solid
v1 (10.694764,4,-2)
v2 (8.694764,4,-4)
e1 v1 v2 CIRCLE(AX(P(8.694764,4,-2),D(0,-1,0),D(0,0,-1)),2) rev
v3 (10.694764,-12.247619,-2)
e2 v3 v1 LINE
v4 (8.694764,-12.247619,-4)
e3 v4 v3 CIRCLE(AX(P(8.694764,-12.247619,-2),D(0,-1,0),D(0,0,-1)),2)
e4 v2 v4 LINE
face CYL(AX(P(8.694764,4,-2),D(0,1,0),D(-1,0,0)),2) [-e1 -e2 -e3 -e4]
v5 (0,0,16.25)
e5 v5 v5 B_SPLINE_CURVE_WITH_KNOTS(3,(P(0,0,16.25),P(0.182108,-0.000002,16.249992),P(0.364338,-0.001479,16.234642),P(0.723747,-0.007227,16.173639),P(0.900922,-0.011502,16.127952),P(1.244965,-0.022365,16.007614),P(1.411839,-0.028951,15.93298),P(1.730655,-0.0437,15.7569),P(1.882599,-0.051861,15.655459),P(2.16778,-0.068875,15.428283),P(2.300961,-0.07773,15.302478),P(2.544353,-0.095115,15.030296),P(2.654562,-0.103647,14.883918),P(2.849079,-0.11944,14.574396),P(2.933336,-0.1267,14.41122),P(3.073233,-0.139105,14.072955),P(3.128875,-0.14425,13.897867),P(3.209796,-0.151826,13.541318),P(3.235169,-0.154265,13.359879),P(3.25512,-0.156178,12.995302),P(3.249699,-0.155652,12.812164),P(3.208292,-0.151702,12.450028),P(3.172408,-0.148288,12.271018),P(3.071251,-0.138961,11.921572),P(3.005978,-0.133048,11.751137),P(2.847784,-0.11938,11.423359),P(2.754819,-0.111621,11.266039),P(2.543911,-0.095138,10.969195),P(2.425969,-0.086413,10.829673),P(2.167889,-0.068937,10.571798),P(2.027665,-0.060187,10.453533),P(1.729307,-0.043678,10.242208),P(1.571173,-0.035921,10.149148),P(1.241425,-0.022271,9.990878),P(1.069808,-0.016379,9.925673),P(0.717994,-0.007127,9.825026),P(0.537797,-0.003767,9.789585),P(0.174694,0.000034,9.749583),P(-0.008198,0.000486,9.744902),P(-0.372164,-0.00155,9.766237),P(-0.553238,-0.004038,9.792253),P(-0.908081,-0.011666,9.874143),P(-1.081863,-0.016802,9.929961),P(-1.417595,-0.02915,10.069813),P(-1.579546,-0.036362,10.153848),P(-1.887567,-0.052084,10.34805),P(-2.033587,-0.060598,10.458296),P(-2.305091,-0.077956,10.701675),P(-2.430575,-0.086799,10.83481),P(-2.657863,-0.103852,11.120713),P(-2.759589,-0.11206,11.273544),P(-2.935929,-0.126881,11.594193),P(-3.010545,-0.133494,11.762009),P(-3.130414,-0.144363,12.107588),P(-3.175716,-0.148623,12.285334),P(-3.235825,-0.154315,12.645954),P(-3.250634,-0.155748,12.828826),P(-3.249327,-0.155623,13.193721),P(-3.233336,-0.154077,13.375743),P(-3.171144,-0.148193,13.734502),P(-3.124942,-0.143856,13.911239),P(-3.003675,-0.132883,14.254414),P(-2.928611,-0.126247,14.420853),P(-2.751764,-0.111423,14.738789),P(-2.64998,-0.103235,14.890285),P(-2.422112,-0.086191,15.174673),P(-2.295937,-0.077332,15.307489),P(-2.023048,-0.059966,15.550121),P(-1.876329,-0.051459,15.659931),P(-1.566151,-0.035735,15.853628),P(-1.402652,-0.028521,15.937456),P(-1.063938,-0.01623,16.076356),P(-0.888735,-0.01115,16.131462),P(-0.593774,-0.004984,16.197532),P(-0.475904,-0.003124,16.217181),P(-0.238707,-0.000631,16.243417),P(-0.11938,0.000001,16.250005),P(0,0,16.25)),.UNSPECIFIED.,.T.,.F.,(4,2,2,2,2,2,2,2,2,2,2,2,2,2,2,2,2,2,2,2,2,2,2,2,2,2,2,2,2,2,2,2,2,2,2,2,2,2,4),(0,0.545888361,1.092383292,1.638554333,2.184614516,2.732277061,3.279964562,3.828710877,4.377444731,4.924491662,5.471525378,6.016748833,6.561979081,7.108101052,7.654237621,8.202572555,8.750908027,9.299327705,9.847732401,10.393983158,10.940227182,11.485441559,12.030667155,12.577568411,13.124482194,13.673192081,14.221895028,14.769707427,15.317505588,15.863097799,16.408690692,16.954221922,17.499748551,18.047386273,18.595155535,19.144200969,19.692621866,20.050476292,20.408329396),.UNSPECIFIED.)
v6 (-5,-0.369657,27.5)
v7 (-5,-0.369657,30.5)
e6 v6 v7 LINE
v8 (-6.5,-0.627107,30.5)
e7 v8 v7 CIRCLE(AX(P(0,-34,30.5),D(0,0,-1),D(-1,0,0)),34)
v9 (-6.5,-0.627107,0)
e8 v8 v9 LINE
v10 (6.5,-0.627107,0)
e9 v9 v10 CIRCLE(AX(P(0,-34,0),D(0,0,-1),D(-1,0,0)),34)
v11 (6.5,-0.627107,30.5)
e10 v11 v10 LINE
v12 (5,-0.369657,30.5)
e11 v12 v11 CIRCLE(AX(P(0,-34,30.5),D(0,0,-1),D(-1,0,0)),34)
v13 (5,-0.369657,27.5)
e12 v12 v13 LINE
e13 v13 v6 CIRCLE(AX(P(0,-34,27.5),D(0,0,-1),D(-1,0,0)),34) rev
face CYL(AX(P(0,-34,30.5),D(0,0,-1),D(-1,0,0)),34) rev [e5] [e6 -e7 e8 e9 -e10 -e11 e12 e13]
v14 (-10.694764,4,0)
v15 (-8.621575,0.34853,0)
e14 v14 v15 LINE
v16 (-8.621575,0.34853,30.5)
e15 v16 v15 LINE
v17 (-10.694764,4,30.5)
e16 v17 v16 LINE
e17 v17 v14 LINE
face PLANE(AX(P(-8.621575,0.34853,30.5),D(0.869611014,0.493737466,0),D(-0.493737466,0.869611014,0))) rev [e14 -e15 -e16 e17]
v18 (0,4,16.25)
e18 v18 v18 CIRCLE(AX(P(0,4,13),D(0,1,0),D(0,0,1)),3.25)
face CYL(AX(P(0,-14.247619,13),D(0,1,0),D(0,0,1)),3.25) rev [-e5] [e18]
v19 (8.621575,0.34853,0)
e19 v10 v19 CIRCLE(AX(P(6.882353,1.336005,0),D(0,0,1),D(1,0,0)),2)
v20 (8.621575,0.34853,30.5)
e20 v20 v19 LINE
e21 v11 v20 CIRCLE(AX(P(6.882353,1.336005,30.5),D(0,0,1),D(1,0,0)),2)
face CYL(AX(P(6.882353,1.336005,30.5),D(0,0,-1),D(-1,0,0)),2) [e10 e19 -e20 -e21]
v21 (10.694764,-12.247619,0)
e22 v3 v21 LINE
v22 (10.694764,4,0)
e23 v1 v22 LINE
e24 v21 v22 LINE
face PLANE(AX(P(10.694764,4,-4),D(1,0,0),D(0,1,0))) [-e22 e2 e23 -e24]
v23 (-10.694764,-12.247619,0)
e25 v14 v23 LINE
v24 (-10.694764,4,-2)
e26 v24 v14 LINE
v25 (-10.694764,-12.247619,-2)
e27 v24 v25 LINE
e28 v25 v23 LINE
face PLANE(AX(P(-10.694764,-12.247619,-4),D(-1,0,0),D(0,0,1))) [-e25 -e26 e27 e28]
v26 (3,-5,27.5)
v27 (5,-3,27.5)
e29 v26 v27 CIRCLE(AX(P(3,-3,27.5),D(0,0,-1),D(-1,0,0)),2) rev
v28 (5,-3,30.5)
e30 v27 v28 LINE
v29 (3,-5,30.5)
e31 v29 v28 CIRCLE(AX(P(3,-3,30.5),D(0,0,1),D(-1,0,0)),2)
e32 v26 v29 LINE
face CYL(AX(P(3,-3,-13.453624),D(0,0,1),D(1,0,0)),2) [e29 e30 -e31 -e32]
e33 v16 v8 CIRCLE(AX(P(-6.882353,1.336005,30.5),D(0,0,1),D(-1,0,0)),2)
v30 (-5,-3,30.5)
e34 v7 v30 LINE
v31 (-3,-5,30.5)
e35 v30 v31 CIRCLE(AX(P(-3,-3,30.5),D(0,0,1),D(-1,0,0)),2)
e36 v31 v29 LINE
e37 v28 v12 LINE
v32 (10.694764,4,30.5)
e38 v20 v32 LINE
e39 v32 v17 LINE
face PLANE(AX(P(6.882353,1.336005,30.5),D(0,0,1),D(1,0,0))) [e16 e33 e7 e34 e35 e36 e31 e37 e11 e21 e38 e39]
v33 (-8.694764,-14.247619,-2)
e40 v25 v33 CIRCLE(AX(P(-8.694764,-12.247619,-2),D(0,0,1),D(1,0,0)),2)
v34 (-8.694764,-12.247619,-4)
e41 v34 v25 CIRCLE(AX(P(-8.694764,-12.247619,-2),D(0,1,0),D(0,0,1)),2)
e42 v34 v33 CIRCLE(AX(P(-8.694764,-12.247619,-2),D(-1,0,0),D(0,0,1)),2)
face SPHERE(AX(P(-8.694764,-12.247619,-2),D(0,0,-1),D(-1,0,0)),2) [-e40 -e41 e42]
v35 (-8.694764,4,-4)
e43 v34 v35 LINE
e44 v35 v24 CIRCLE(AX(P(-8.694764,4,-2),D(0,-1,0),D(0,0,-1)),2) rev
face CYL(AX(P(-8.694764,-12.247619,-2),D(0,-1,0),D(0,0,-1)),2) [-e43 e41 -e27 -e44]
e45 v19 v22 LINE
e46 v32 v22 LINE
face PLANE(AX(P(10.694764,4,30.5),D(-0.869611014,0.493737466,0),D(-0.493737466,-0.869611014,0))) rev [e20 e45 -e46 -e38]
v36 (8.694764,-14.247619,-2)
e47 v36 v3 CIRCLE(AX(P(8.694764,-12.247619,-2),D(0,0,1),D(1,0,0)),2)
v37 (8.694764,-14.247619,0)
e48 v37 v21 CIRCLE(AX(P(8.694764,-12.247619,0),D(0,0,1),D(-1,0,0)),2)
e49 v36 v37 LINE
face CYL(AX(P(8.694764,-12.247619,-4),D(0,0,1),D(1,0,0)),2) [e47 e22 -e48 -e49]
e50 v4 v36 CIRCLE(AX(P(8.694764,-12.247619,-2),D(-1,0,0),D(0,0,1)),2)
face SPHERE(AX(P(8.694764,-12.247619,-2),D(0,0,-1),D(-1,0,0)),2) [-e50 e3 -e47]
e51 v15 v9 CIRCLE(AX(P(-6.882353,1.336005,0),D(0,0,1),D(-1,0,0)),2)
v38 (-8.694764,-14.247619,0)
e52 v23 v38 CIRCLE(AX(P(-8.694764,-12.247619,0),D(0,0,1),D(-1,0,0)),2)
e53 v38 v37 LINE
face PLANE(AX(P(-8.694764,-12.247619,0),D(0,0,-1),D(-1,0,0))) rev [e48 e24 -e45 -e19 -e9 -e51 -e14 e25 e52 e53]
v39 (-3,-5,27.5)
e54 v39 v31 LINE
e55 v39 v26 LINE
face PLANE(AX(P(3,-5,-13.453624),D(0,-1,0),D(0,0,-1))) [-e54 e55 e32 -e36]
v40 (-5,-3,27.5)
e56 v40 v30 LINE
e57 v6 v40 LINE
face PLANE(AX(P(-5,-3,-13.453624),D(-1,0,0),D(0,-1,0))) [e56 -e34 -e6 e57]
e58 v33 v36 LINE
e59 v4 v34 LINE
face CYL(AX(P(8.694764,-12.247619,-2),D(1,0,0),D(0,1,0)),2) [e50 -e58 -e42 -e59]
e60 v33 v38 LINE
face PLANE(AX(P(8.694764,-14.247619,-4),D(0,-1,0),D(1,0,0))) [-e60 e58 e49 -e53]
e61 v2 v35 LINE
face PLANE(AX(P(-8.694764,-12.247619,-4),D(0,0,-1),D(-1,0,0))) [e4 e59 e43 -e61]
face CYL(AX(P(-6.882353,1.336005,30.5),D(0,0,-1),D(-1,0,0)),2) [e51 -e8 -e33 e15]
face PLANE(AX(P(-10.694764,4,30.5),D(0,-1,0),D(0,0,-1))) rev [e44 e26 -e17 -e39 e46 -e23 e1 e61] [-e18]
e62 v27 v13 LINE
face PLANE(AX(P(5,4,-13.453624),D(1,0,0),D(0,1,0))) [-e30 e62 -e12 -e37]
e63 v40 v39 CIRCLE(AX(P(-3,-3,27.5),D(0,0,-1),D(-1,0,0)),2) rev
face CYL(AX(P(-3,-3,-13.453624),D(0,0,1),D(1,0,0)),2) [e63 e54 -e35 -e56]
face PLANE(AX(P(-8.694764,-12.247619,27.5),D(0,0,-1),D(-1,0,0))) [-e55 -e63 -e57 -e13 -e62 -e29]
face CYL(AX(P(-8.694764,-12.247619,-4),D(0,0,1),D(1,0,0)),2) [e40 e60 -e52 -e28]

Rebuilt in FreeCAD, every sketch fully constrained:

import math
import FreeCAD as App
import Part
import Sketcher

V = App.Vector
Q = App.Units.Quantity


def edges_at(feature, points):
    """Names of the edges that pass closest to the given points."""
    edges = feature.Shape.Edges
    near = lambda p: min(range(len(edges)), key=lambda i: edges[i].distToShape(Part.Vertex(*p))[0])
    return sorted({f"Edge{near(p) + 1}" for p in points})

doc = App.newDocument("Part")
body = doc.addObject("PartDesign::Body", "Body")

sketch1 = doc.addObject("Sketcher::SketchObject", "Sketch")
body.addObject(sketch1)
sketch1.AttachmentSupport = (doc.XY_Plane, [""])
sketch1.MapMode = "FlatFace"
sketch1.addGeometry([
    Part.LineSegment(V(-10.694764, 4, 0), V(-8.621575, 0.34853, 0)),
    Part.ArcOfCircle(Part.Circle(V(-6.882353, 1.336005, 0), V(0, 0, 1), 2), math.radians(-150.413468), math.radians(-78.97855)),
    Part.ArcOfCircle(Part.Circle(V(0, -34, 0), V(0, 0, 1), 34), math.radians(78.97855), math.radians(101.02145)),
    Part.ArcOfCircle(Part.Circle(V(6.882353, 1.336005, 0), V(0, 0, 1), 2), math.radians(-101.02145), math.radians(-29.586532)),
    Part.LineSegment(V(8.621575, 0.34853, 0), V(10.694764, 4, 0)),
    Part.LineSegment(V(10.694764, 4, 0), V(-10.694764, 4, 0)),
], False)
sketch1.addConstraint([
    Sketcher.Constraint("Tangent", 0, 2, 1, 1),
    Sketcher.Constraint("Tangent", 1, 2, 2, 2),
    Sketcher.Constraint("Tangent", 2, 1, 3, 1),
    Sketcher.Constraint("Tangent", 3, 2, 4, 1),
    Sketcher.Constraint("Coincident", 4, 2, 5, 1),
    Sketcher.Constraint("Coincident", 5, 2, 0, 1),
    Sketcher.Constraint("Horizontal", 5),
    Sketcher.Constraint("Equal", 1, 3),
    Sketcher.Constraint("Symmetric", 1, 3, 3, 3, -2),
    Sketcher.Constraint("Horizontal", 0, 2, 3, 2),
    Sketcher.Constraint("Radius", 1, Q("2 mm")),
    Sketcher.Constraint("Radius", 2, Q("34 mm")),
    Sketcher.Constraint("DistanceY", 2, 3, -1, 1, Q("34 mm")),
    Sketcher.Constraint("DistanceY", -1, 1, 4, 2, Q("4 mm")),
    Sketcher.Constraint("DistanceX", 1, 2, 2, 1, Q("13 mm")),
    Sketcher.Constraint("Distance", 0, Q("4.19897 mm")),
])
pad1 = doc.addObject("PartDesign::Pad", "Pad")
body.addObject(pad1)
pad1.Profile = sketch1
pad1.Length = 30.5

sketch2 = doc.addObject("Sketcher::SketchObject", "Sketch001")
body.addObject(sketch2)
sketch2.AttachmentSupport = (doc.XY_Plane, [""])
sketch2.MapMode = "FlatFace"
sketch2.addGeometry([
    Part.LineSegment(V(10.694764, -12.247619, 0), V(10.694764, 4, 0)),
    Part.LineSegment(V(10.694764, 4, 0), V(-10.694764, 4, 0)),
    Part.LineSegment(V(-10.694764, 4, 0), V(-10.694764, -12.247619, 0)),
    Part.ArcOfCircle(Part.Circle(V(-8.694764, -12.247619, 0), V(0, 0, 1), 2), math.radians(-180), math.radians(-90)),
    Part.LineSegment(V(-8.694764, -14.247619, 0), V(8.694764, -14.247619, 0)),
    Part.ArcOfCircle(Part.Circle(V(8.694764, -12.247619, 0), V(0, 0, 1), 2), math.radians(-90), math.radians(0)),
], False)
sketch2.addConstraint([
    Sketcher.Constraint("Coincident", 0, 2, 1, 1),
    Sketcher.Constraint("Coincident", 1, 2, 2, 1),
    Sketcher.Constraint("Tangent", 2, 2, 3, 1),
    Sketcher.Constraint("Tangent", 3, 2, 4, 1),
    Sketcher.Constraint("Tangent", 4, 2, 5, 1),
    Sketcher.Constraint("Tangent", 5, 2, 0, 1),
    Sketcher.Constraint("Vertical", 0),
    Sketcher.Constraint("Horizontal", 1),
    Sketcher.Constraint("Vertical", 2),
    Sketcher.Constraint("Horizontal", 4),
    Sketcher.Constraint("Equal", 3, 5),
    Sketcher.Constraint("Radius", 3, Q("2 mm")),
    Sketcher.Constraint("DistanceY", -1, 1, 0, 2, Q("4 mm")),
    Sketcher.Constraint("DistanceY", 0, 1, 0, 2, Q("16.247619 mm")),
    Sketcher.Constraint("DistanceX", 1, 2, 1, 1, Q("21.389527 mm")),
    Sketcher.Constraint("DistanceX", 3, 3, -1, 1, Q("8.694764 mm")),
])
pad2 = doc.addObject("PartDesign::Pad", "Pad001")
body.addObject(pad2)
pad2.Profile = sketch2
pad2.Length = 4
pad2.Reversed = True

sketch3 = doc.addObject("Sketcher::SketchObject", "Sketch002")
body.addObject(sketch3)
sketch3.AttachmentSupport = (doc.XZ_Plane, [""])
sketch3.MapMode = "FlatFace"
sketch3.addGeometry(Part.Circle(V(0, 13, 0), V(0, 0, 1), 3.25), False)
sketch3.addConstraint([
    Sketcher.Constraint("PointOnObject", 0, 3, -2),
    Sketcher.Constraint("Diameter", 0, Q("6.5 mm")),
    Sketcher.Constraint("DistanceY", -1, 1, 0, 3, Q("13 mm")),
])
pocket1 = doc.addObject("PartDesign::Pocket", "Pocket")
body.addObject(pocket1)
pocket1.Profile = sketch3
pocket1.Type = "ThroughAll"
pocket1.Midplane = True

sketch4 = doc.addObject("Sketcher::SketchObject", "Sketch003")
body.addObject(sketch4)
sketch4.AttachmentSupport = (doc.XY_Plane, [""])
sketch4.MapMode = "FlatFace"
sketch4.AttachmentOffset = App.Placement(V(0, 0, 30.5), App.Rotation())
sketch4.addGeometry([
    Part.LineSegment(V(5, 4, 0), V(-5, 4, 0)),
    Part.LineSegment(V(-5, 4, 0), V(-5, -3, 0)),
    Part.ArcOfCircle(Part.Circle(V(-3, -3, 0), V(0, 0, 1), 2), math.radians(-180), math.radians(-90)),
    Part.LineSegment(V(-3, -5, 0), V(3, -5, 0)),
    Part.ArcOfCircle(Part.Circle(V(3, -3, 0), V(0, 0, 1), 2), math.radians(-90), math.radians(0)),
    Part.LineSegment(V(5, -3, 0), V(5, 4, 0)),
], False)
sketch4.addConstraint([
    Sketcher.Constraint("Coincident", 0, 2, 1, 1),
    Sketcher.Constraint("Tangent", 1, 2, 2, 1),
    Sketcher.Constraint("Tangent", 2, 2, 3, 1),
    Sketcher.Constraint("Tangent", 3, 2, 4, 1),
    Sketcher.Constraint("Tangent", 4, 2, 5, 1),
    Sketcher.Constraint("Coincident", 5, 2, 0, 1),
    Sketcher.Constraint("Horizontal", 0),
    Sketcher.Constraint("Vertical", 1),
    Sketcher.Constraint("Horizontal", 3),
    Sketcher.Constraint("Vertical", 5),
    Sketcher.Constraint("Equal", 2, 4),
    Sketcher.Constraint("Radius", 2, Q("2 mm")),
    Sketcher.Constraint("DistanceX", 0, 2, 0, 1, Q("10 mm")),
    Sketcher.Constraint("DistanceY", 1, 2, 1, 1, Q("7 mm")),
    Sketcher.Constraint("DistanceX", 2, 3, -1, 1, Q("3 mm")),
    Sketcher.Constraint("DistanceY", 2, 3, -1, 1, Q("3 mm")),
])
pad3 = doc.addObject("PartDesign::Pad", "Pad002")
body.addObject(pad3)
pad3.Profile = sketch4
pad3.Length = 3
pad3.Reversed = True
doc.recompute()

fillet = doc.addObject("PartDesign::Fillet", "Fillet")
body.addObject(fillet)
fillet.Base = (pad3, edges_at(pad3, [
    (-10.109, -13.662, -4),
    (-10.695, -4.124, -4),
    (10.695, -4.124, -4),
    (10.109, -13.662, -4),
    (0, -14.248, -4),
]))
fillet.Radius = 2

doc.recompute()
